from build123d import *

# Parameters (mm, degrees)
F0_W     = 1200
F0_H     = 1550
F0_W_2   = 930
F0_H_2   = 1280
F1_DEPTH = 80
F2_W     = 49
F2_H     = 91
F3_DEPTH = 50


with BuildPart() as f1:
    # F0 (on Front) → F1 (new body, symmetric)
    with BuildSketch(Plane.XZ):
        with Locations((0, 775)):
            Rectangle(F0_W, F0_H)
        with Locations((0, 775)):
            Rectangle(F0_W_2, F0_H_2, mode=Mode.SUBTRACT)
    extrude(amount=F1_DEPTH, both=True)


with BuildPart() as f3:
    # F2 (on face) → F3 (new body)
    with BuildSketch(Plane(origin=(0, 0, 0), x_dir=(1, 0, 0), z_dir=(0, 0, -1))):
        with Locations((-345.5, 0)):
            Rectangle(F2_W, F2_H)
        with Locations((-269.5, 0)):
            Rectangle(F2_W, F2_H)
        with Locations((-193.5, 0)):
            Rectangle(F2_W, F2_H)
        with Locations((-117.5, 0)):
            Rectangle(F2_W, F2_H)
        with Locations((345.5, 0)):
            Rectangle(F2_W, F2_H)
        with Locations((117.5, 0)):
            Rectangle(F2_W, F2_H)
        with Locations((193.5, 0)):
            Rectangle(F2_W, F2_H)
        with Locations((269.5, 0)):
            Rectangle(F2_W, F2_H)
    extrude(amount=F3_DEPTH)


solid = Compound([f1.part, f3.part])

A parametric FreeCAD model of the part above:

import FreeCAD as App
import Part
import Sketcher
from FreeCAD import Vector


def add_polygon(sketch, points):
    """Adds a closed chain of lines whose ends are joined by coincident constraints."""
    first, n = sketch.GeometryCount, len(points)
    for a, b in zip(points, points[1:] + points[:1]):
        sketch.addGeometry(Part.LineSegment(App.Vector(*a, 0), App.Vector(*b, 0)), False)
    for i in range(n):
        sketch.addConstraint(Sketcher.Constraint("Coincident", first + i, 2, first + (i + 1) % n, 1))

doc = App.newDocument("Part")
params = doc.addObject("Spreadsheet::Sheet", "Params")
for row, (alias, value) in enumerate([
    ("sketch1_width", "1200 mm"),
    ("sketch1_width2", "930 mm"),
    ("sketch1_height", "1550 mm"),
    ("sketch1_height2", "1280 mm"),
    ("pad1_length", "160 mm"),
    ("sketch2_width", "49 mm"),
    ("sketch2_height", "91 mm"),
    ("pad2_length", "50 mm"),
], start=1):
    params.set(f"A{row}", alias)
    params.set(f"B{row}", "=" + value)
    params.setAlias(f"B{row}", alias)

body = doc.addObject("PartDesign::Body", "Body")

# Sketch on XZ plane
sketch1 = doc.addObject("Sketcher::SketchObject", "Sketch")
body.addObject(sketch1)
sketch1.AttachmentSupport = (doc.XZ_Plane, [""])
sketch1.MapMode = "FlatFace"
add_polygon(sketch1, [(-600, 1550), (-600, 0), (600, 0), (600, 1550)])  # lines 0-3
add_polygon(sketch1, [(465, 135), (-465, 135), (-465, 1415), (465, 1415)])  # lines 4-7
sketch1.addConstraint(Sketcher.Constraint("Vertical", 0))
sketch1.addConstraint(Sketcher.Constraint("Horizontal", 1))
sketch1.addConstraint(Sketcher.Constraint("Vertical", 2))
sketch1.addConstraint(Sketcher.Constraint("Horizontal", 3))
sketch1.addConstraint(Sketcher.Constraint("Horizontal", 4))
sketch1.addConstraint(Sketcher.Constraint("Vertical", 5))
sketch1.addConstraint(Sketcher.Constraint("Horizontal", 6))
sketch1.addConstraint(Sketcher.Constraint("Vertical", 7))
sketch1.addConstraint(Sketcher.Constraint("Symmetric", 0, 2, 1, 2, -1, 1))
sketch1.addConstraint(Sketcher.Constraint("DistanceX", 1, 1, 1, 2, 1200.0))
sketch1.addConstraint(Sketcher.Constraint("DistanceX", 4, 2, 4, 1, 930.0))
sketch1.addConstraint(Sketcher.Constraint("DistanceY", 0, 2, 0, 1, 1550.0))
sketch1.addConstraint(Sketcher.Constraint("DistanceY", 5, 1, 5, 2, 1280.0))
sketch1.addConstraint(Sketcher.Constraint("DistanceX", 4, 2, -1, 1, 465.0))
sketch1.addConstraint(Sketcher.Constraint("DistanceY", -1, 1, 4, 2, 135.0))
sketch1.setExpression("Constraints[17]", "Params.sketch1_width")
sketch1.setExpression("Constraints[18]", "Params.sketch1_width2")
sketch1.setExpression("Constraints[19]", "Params.sketch1_height")
sketch1.setExpression("Constraints[20]", "Params.sketch1_height2")
pad1 = doc.addObject("PartDesign::Pad", "Pad")
body.addObject(pad1)
pad1.Profile = sketch1
pad1.setExpression("Length", "Params.pad1_length")
pad1.Midplane = True
body2 = doc.addObject("PartDesign::Body", "Body001")
body2.AllowCompound = True

# Sketch on XY plane
sketch2 = doc.addObject("Sketcher::SketchObject", "Sketch001")
body2.addObject(sketch2)
sketch2.AttachmentSupport = (doc.getObject("XY_Plane001"), [""])
sketch2.MapMode = "FlatFace"
add_polygon(sketch2, [(-370, -46), (-370, 46), (-321, 46), (-321, -46)])  # lines 0-3
add_polygon(sketch2, [(-294, -46), (-294, 46), (-245, 46), (-245, -46)])  # lines 4-7
add_polygon(sketch2, [(-218, -46), (-218, 46), (-169, 46), (-169, -46)])  # lines 8-11
add_polygon(sketch2, [(-142, -46), (-142, 46), (-93, 46), (-93, -46)])  # lines 12-15
add_polygon(sketch2, [(321, -46), (321, 46), (370, 46), (370, -46)])  # lines 16-19
add_polygon(sketch2, [(93, -46), (93, 46), (142, 46), (142, -46)])  # lines 20-23
add_polygon(sketch2, [(169, -46), (169, 46), (218, 46), (218, -46)])  # lines 24-27
add_polygon(sketch2, [(245, -46), (245, 46), (294, 46), (294, -46)])  # lines 28-31
sketch2.addConstraint(Sketcher.Constraint("Vertical", 0))
sketch2.addConstraint(Sketcher.Constraint("Horizontal", 1))
sketch2.addConstraint(Sketcher.Constraint("Vertical", 2))
sketch2.addConstraint(Sketcher.Constraint("Horizontal", 3))
sketch2.addConstraint(Sketcher.Constraint("Vertical", 4))
sketch2.addConstraint(Sketcher.Constraint("Horizontal", 5))
sketch2.addConstraint(Sketcher.Constraint("Vertical", 6))
sketch2.addConstraint(Sketcher.Constraint("Horizontal", 7))
sketch2.addConstraint(Sketcher.Constraint("Vertical", 8))
sketch2.addConstraint(Sketcher.Constraint("Horizontal", 9))
sketch2.addConstraint(Sketcher.Constraint("Vertical", 10))
sketch2.addConstraint(Sketcher.Constraint("Horizontal", 11))
sketch2.addConstraint(Sketcher.Constraint("Vertical", 12))
sketch2.addConstraint(Sketcher.Constraint("Horizontal", 13))
sketch2.addConstraint(Sketcher.Constraint("Vertical", 14))
sketch2.addConstraint(Sketcher.Constraint("Horizontal", 15))
sketch2.addConstraint(Sketcher.Constraint("Vertical", 16))
sketch2.addConstraint(Sketcher.Constraint("Horizontal", 17))
sketch2.addConstraint(Sketcher.Constraint("Vertical", 18))
sketch2.addConstraint(Sketcher.Constraint("Horizontal", 19))
sketch2.addConstraint(Sketcher.Constraint("Vertical", 20))
sketch2.addConstraint(Sketcher.Constraint("Horizontal", 21))
sketch2.addConstraint(Sketcher.Constraint("Vertical", 22))
sketch2.addConstraint(Sketcher.Constraint("Horizontal", 23))
sketch2.addConstraint(Sketcher.Constraint("Vertical", 24))
sketch2.addConstraint(Sketcher.Constraint("Horizontal", 25))
sketch2.addConstraint(Sketcher.Constraint("Vertical", 26))
sketch2.addConstraint(Sketcher.Constraint("Horizontal", 27))
sketch2.addConstraint(Sketcher.Constraint("Vertical", 28))
sketch2.addConstraint(Sketcher.Constraint("Horizontal", 29))
sketch2.addConstraint(Sketcher.Constraint("Vertical", 30))
sketch2.addConstraint(Sketcher.Constraint("Horizontal", 31))
sketch2.addConstraint(Sketcher.Constraint("Symmetric", 2, 2, 16, 2, -1, 1))
sketch2.addConstraint(Sketcher.Constraint("Symmetric", 0, 2, 18, 2, -1, 1))
sketch2.addConstraint(Sketcher.Constraint("Symmetric", 14, 2, 20, 2, -1, 1))
sketch2.addConstraint(Sketcher.Constraint("Symmetric", 12, 2, 22, 2, -1, 1))
sketch2.addConstraint(Sketcher.Constraint("Symmetric", 10, 2, 24, 2, -1, 1))
sketch2.addConstraint(Sketcher.Constraint("Symmetric", 8, 2, 26, 2, -1, 1))
sketch2.addConstraint(Sketcher.Constraint("Symmetric", 6, 2, 28, 2, -1, 1))
sketch2.addConstraint(Sketcher.Constraint("Symmetric", 4, 2, 30, 2, -1, 1))
sketch2.addConstraint(Sketcher.Constraint("Horizontal", 1, 2, 4, 2))
sketch2.addConstraint(Sketcher.Constraint("Horizontal", 3, 2, 6, 2))
sketch2.addConstraint(Sketcher.Constraint("Horizontal", 5, 2, 8, 2))
sketch2.addConstraint(Sketcher.Constraint("Horizontal", 7, 2, 10, 2))
sketch2.addConstraint(Sketcher.Constraint("Horizontal", 9, 2, 12, 2))
sketch2.addConstraint(Sketcher.Constraint("Horizontal", 11, 2, 14, 2))
sketch2.addConstraint(Sketcher.Constraint("Horizontal", 13, 2, 16, 2))
sketch2.addConstraint(Sketcher.Constraint("Equal", 3, 5))
sketch2.addConstraint(Sketcher.Constraint("Equal", 7, 9))
sketch2.addConstraint(Sketcher.Constraint("Equal", 11, 13))
sketch2.addConstraint(Sketcher.Constraint("DistanceX", 1, 1, 1, 2, 49.0))
sketch2.addConstraint(Sketcher.Constraint("DistanceY", 0, 1, 0, 2, 91.0))
sketch2.addConstraint(Sketcher.Constraint("DistanceX", 0, 2, -1, 1, 370.0))
sketch2.addConstraint(Sketcher.Constraint("DistanceX", 4, 2, -1, 1, 294.0))
sketch2.addConstraint(Sketcher.Constraint("DistanceX", 8, 2, -1, 1, 218.0))
sketch2.addConstraint(Sketcher.Constraint("DistanceX", 12, 2, -1, 1, 142.0))
sketch2.setExpression("Constraints[82]", "Params.sketch2_width")
sketch2.setExpression("Constraints[83]", "Params.sketch2_height")
pad2 = doc.addObject("PartDesign::Pad", "Pad001")
body2.addObject(pad2)
pad2.Profile = sketch2
pad2.setExpression("Length", "Params.pad2_length")
pad2.Reversed = True

doc.recompute()
